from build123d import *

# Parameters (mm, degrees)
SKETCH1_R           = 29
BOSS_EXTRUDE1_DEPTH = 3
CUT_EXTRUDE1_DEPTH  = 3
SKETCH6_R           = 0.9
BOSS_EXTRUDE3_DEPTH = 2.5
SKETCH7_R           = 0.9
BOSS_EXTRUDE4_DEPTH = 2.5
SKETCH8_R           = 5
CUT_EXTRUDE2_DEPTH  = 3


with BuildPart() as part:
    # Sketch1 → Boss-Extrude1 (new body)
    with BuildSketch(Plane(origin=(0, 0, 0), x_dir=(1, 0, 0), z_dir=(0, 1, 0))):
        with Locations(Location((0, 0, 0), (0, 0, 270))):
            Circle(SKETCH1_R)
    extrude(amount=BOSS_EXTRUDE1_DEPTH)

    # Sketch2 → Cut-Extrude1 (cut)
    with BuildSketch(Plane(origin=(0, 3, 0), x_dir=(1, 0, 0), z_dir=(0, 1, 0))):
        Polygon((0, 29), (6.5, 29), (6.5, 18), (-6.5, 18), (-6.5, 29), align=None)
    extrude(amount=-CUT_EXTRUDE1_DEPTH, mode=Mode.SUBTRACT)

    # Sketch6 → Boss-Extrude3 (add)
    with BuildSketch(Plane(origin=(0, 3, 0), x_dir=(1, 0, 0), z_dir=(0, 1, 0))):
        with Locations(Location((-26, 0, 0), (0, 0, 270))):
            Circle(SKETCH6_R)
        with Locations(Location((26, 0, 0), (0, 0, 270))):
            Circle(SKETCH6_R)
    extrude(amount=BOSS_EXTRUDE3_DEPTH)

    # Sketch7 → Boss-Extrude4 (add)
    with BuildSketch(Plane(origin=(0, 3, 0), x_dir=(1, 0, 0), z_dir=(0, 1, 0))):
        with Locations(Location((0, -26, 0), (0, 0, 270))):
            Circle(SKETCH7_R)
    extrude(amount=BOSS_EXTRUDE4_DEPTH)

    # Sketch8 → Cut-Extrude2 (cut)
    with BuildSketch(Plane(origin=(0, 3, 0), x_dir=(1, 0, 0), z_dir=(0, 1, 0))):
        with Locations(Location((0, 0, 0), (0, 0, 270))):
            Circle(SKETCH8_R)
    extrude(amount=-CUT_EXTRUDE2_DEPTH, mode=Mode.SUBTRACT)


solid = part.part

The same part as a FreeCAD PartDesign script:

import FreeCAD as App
import Part
import Sketcher

V = App.Vector

doc = App.newDocument("Part")
body = doc.addObject("PartDesign::Body", "Body")

# Sketch on XZ plane
sketch1 = body.newObject("Sketcher::SketchObject", "Sketch")
sketch1.AttachmentSupport = (doc.getObject("XZ_Plane"), [""])
sketch1.MapMode = "FlatFace"
sketch1.addGeometry(Part.Circle(V(0, 0, 0), V(0, 0, 1), 29), False)
sketch1.addConstraint([
    Sketcher.Constraint("Coincident", 0, 3, -1, 1),
    Sketcher.Constraint("Diameter", 0, 58.0),
])
pad1 = body.newObject("PartDesign::Pad", "Pad")
pad1.Profile = sketch1
pad1.Length = 3
pad1.Reversed = True

# Sketch on XZ plane
sketch2 = body.newObject("Sketcher::SketchObject", "Sketch001")
sketch2.AttachmentSupport = (doc.getObject("XZ_Plane"), [""])
sketch2.MapMode = "FlatFace"
sketch2.AttachmentOffset = App.Placement(V(0, 0, -3), App.Rotation())
sketch2.addGeometry([
    Part.LineSegment(V(6, -29, 0), V(-6, -29, 0)),
    Part.LineSegment(V(-6, -29, 0), V(-6, -18, 0)),
    Part.LineSegment(V(-6, -18, 0), V(6, -18, 0)),
    Part.LineSegment(V(6, -18, 0), V(6, -29, 0)),
], False)
sketch2.addConstraint([
    Sketcher.Constraint("Coincident", 0, 2, 1, 1),
    Sketcher.Constraint("Coincident", 1, 2, 2, 1),
    Sketcher.Constraint("Coincident", 2, 2, 3, 1),
    Sketcher.Constraint("Coincident", 3, 2, 0, 1),
    Sketcher.Constraint("Horizontal", 0),
    Sketcher.Constraint("Vertical", 1),
    Sketcher.Constraint("Horizontal", 2),
    Sketcher.Constraint("Vertical", 3),
    Sketcher.Constraint("DistanceX", 0, 2, 0, 1, 13.0),
    Sketcher.Constraint("DistanceY", 1, 1, 1, 2, 11.0),
    Sketcher.Constraint("DistanceY", 0, 2, -1, 1, 29.0),
    Sketcher.Constraint("DistanceX", 0, 2, -1, 1, 6.5),
])
pocket1 = body.newObject("PartDesign::Pocket", "Pocket")
pocket1.Profile = sketch2
pocket1.Length = 3
pocket1.Reversed = True

# Sketch on XZ plane
sketch3 = body.newObject("Sketcher::SketchObject", "Sketch002")
sketch3.AttachmentSupport = (doc.getObject("XZ_Plane"), [""])
sketch3.MapMode = "FlatFace"
sketch3.AttachmentOffset = App.Placement(V(0, 0, -3), App.Rotation())
sketch3.addGeometry([
    Part.Circle(V(-26, 0, 0), V(0, 0, 1), 0.9),
    Part.Circle(V(26, 0, 0), V(0, 0, 1), 0.9),
], False)
sketch3.addConstraint([
    Sketcher.Constraint("Equal", 0, 1),
    Sketcher.Constraint("Symmetric", 0, 3, 1, 3, -1, 1),
    Sketcher.Constraint("PointOnObject", 0, 3, -1),
    Sketcher.Constraint("Diameter", 0, 1.8),
    Sketcher.Constraint("DistanceX", 0, 3, -1, 1, 26.0),
])
pad2 = body.newObject("PartDesign::Pad", "Pad001")
pad2.Profile = sketch3
pad2.Length = 2.5
pad2.Reversed = True

# Sketch on XZ plane
sketch4 = body.newObject("Sketcher::SketchObject", "Sketch003")
sketch4.AttachmentSupport = (doc.getObject("XZ_Plane"), [""])
sketch4.MapMode = "FlatFace"
sketch4.AttachmentOffset = App.Placement(V(0, 0, -3), App.Rotation())
sketch4.addGeometry(Part.Circle(V(0, 26, 0), V(0, 0, 1), 0.9), False)
sketch4.addConstraint([
    Sketcher.Constraint("PointOnObject", 0, 3, -2),
    Sketcher.Constraint("Diameter", 0, 1.8),
    Sketcher.Constraint("DistanceY", -1, 1, 0, 3, 26.0),
])
pad3 = body.newObject("PartDesign::Pad", "Pad002")
pad3.Profile = sketch4
pad3.Length = 2.5
pad3.Reversed = True

# Sketch on XZ plane
sketch5 = body.newObject("Sketcher::SketchObject", "Sketch004")
sketch5.AttachmentSupport = (doc.getObject("XZ_Plane"), [""])
sketch5.MapMode = "FlatFace"
sketch5.AttachmentOffset = App.Placement(V(0, 0, -3), App.Rotation())
sketch5.addGeometry(Part.Circle(V(0, 0, 0), V(0, 0, 1), 5), False)
sketch5.addConstraint([
    Sketcher.Constraint("Coincident", 0, 3, -1, 1),
    Sketcher.Constraint("Diameter", 0, 10.0),
])
pocket2 = body.newObject("PartDesign::Pocket", "Pocket001")
pocket2.Profile = sketch5
pocket2.Length = 3
pocket2.Reversed = True

doc.recompute()
